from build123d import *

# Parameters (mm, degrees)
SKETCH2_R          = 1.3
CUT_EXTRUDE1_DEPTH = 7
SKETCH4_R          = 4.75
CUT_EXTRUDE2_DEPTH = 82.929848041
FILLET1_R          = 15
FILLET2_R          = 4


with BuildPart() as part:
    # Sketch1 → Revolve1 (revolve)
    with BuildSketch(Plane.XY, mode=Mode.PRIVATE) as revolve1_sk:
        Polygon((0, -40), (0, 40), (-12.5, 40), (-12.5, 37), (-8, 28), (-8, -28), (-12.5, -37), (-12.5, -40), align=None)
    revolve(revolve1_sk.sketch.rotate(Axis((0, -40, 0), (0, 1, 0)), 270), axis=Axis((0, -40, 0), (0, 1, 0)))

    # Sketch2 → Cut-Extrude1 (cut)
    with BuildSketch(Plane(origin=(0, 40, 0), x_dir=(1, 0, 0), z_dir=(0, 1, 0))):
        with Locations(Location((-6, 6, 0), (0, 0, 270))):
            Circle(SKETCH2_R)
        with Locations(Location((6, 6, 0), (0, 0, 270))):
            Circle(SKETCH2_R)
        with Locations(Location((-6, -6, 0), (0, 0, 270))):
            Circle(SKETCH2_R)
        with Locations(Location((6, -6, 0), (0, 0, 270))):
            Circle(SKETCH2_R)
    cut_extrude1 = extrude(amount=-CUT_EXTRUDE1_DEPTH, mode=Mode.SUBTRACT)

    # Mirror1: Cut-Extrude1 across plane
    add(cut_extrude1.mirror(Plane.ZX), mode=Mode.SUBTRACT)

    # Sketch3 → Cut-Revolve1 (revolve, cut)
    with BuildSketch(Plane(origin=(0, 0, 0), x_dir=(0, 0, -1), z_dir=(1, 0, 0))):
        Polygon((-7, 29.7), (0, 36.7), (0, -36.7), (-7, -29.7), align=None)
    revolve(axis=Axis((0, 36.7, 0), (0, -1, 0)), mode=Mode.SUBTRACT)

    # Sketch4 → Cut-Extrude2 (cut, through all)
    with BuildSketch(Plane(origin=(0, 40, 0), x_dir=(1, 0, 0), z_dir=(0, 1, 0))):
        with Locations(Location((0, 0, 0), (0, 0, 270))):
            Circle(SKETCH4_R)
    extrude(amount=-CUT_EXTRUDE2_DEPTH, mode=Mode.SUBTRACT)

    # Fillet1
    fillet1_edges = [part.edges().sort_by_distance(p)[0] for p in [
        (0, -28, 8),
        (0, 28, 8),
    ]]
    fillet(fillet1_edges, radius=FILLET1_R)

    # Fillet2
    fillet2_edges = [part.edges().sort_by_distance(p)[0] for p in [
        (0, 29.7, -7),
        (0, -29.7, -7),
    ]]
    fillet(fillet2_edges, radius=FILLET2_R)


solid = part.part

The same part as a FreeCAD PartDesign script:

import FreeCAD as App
import Part
import Sketcher
Q = App.Units.Quantity


def edges_at(feature, points):
    """Names of the edges that pass closest to the given points."""
    edges = feature.Shape.Edges
    near = lambda p: min(range(len(edges)), key=lambda i: edges[i].distToShape(Part.Vertex(*p))[0])
    return sorted({f"Edge{near(p) + 1}" for p in points})

doc = App.newDocument("Part")
body = doc.addObject("PartDesign::Body", "Body")

# Sketch on XY plane
sketch1 = body.newObject("Sketcher::SketchObject", "Sketch")
sketch1.AttachmentSupport = (doc.getObject("XY_Plane"), [""])
sketch1.MapMode = "FlatFace"
sketch1.addGeometry([
    Part.LineSegment(App.Vector(0, -40, 0), App.Vector(0, 40, 0)),  # 0
    Part.LineSegment(App.Vector(0, 40, 0), App.Vector(-12.5, 40, 0)),  # 1
    Part.LineSegment(App.Vector(-12.5, 40, 0), App.Vector(-12.5, 37, 0)),  # 2
    Part.LineSegment(App.Vector(-12.5, 37, 0), App.Vector(-8, 28, 0)),  # 3
    Part.LineSegment(App.Vector(-8, 28, 0), App.Vector(-8, -28, 0)),  # 4
    Part.LineSegment(App.Vector(-8, -28, 0), App.Vector(-12.5, -37, 0)),  # 5
    Part.LineSegment(App.Vector(-12.5, -37, 0), App.Vector(-12.5, -40, 0)),  # 6
    Part.LineSegment(App.Vector(-12.5, -40, 0), App.Vector(0, -40, 0)),  # 7
], False)
sketch1.addConstraint([
    Sketcher.Constraint("Coincident", 0, 2, 1, 1),
    Sketcher.Constraint("Coincident", 1, 2, 2, 1),
    Sketcher.Constraint("Coincident", 2, 2, 3, 1),
    Sketcher.Constraint("Coincident", 3, 2, 4, 1),
    Sketcher.Constraint("Coincident", 4, 2, 5, 1),
    Sketcher.Constraint("Coincident", 5, 2, 6, 1),
    Sketcher.Constraint("Coincident", 6, 2, 7, 1),
    Sketcher.Constraint("Coincident", 7, 2, 0, 1),
    Sketcher.Constraint("Vertical", 0),
    Sketcher.Constraint("Horizontal", 1),
    Sketcher.Constraint("Vertical", 2),
    Sketcher.Constraint("Vertical", 4),
    Sketcher.Constraint("Vertical", 6),
    Sketcher.Constraint("Horizontal", 7),
    Sketcher.Constraint("Symmetric", 0, 2, 7, 2, -1, 1),
    Sketcher.Constraint("Symmetric", 2, 2, 5, 2, -1),
    Sketcher.Constraint("Equal", 3, 5),
    Sketcher.Constraint("DistanceY", 0, 1, 0, 2, Q("80 mm")),
    Sketcher.Constraint("DistanceY", 2, 2, 2, 1, Q("3 mm")),
    Sketcher.Constraint("DistanceY", 4, 2, 4, 1, Q("56 mm")),
    Sketcher.Constraint("DistanceX", 1, 2, 1, 1, Q("12.5 mm")),
    Sketcher.Constraint("DistanceX", 3, 2, -1, 1, Q("8 mm")),
])
revolution = body.newObject("PartDesign::Revolution", "Revolution")
revolution.Profile = sketch1
revolution.ReferenceAxis = (sketch1, ["V_Axis"])
revolution.Angle = 360

# Sketch on XZ plane
sketch2 = body.newObject("Sketcher::SketchObject", "Sketch001")
sketch2.AttachmentSupport = (doc.getObject("XZ_Plane"), [""])
sketch2.MapMode = "FlatFace"
sketch2.AttachmentOffset = App.Placement(App.Vector(0, 0, -40), App.Rotation())
sketch2.addGeometry([
    Part.Circle(App.Vector(-6, -6, 0), App.Vector(0, 0, 1), 1.3),
    Part.Circle(App.Vector(6, -6, 0), App.Vector(0, 0, 1), 1.3),
    Part.Circle(App.Vector(-6, 6, 0), App.Vector(0, 0, 1), 1.3),
    Part.Circle(App.Vector(6, 6, 0), App.Vector(0, 0, 1), 1.3),
], False)
sketch2.addConstraint([
    Sketcher.Constraint("Equal", 0, 1),
    Sketcher.Constraint("Equal", 1, 2),
    Sketcher.Constraint("Equal", 2, 3),
    Sketcher.Constraint("Symmetric", 1, 3, 2, 3, -1, 1),
    Sketcher.Constraint("Symmetric", 0, 3, 3, 3, -1, 1),
    Sketcher.Constraint("Symmetric", 0, 3, 1, 3, -2),
    Sketcher.Constraint("Diameter", 0, Q("2.6 mm")),
    Sketcher.Constraint("DistanceX", 0, 3, -1, 1, Q("6 mm")),
    Sketcher.Constraint("DistanceY", 0, 3, -1, 1, Q("6 mm")),
])
pocket1 = body.newObject("PartDesign::Pocket", "Pocket")
pocket1.Profile = sketch2
pocket1.Length = 7
pocket1.Reversed = True
doc.recompute()

mirrored = body.newObject("PartDesign::Mirrored", "Mirrored")
mirrored.Originals = [pocket1]
mirrored.MirrorPlane = (doc.getObject("XZ_Plane"), [""])
body.Tip = mirrored

# Sketch on YZ plane
sketch3 = body.newObject("Sketcher::SketchObject", "Sketch002")
sketch3.AttachmentSupport = (doc.getObject("YZ_Plane"), [""])
sketch3.MapMode = "FlatFace"
sketch3.addGeometry([
    Part.LineSegment(App.Vector(36.7, 0, 0), App.Vector(29.7, 7, 0)),
    Part.LineSegment(App.Vector(29.7, 7, 0), App.Vector(-29.7, 7, 0)),
    Part.LineSegment(App.Vector(-29.7, 7, 0), App.Vector(-36.7, 0, 0)),
    Part.LineSegment(App.Vector(-36.7, 0, 0), App.Vector(36.7, 0, 0)),
], False)
sketch3.addConstraint([
    Sketcher.Constraint("Coincident", 0, 2, 1, 1),
    Sketcher.Constraint("Coincident", 1, 2, 2, 1),
    Sketcher.Constraint("Coincident", 2, 2, 3, 1),
    Sketcher.Constraint("Coincident", 3, 2, 0, 1),
    Sketcher.Constraint("Horizontal", 1),
    Sketcher.Constraint("Horizontal", 3),
    Sketcher.Constraint("Symmetric", 2, 2, 3, 2, -1, 1),
    Sketcher.Constraint("Perpendicular", 0, 2),
    Sketcher.Constraint("Equal", 0, 2),
    Sketcher.Constraint("DistanceX", 1, 2, 1, 1, Q("59.4 mm")),
    Sketcher.Constraint("DistanceX", 3, 1, 3, 2, Q("73.4 mm")),
])
groove = body.newObject("PartDesign::Groove", "Groove")
groove.Profile = sketch3
groove.ReferenceAxis = (sketch3, ["H_Axis"])
groove.Angle = 360

# Sketch on XZ plane
sketch4 = body.newObject("Sketcher::SketchObject", "Sketch003")
sketch4.AttachmentSupport = (doc.getObject("XZ_Plane"), [""])
sketch4.MapMode = "FlatFace"
sketch4.AttachmentOffset = App.Placement(App.Vector(0, 0, -40), App.Rotation())
sketch4.addGeometry(Part.Circle(App.Vector(0, 0, 0), App.Vector(0, 0, 1), 4.75), False)
sketch4.addConstraint([
    Sketcher.Constraint("Coincident", 0, 3, -1, 1),
    Sketcher.Constraint("Diameter", 0, Q("9.5 mm")),
])
pocket2 = body.newObject("PartDesign::Pocket", "Pocket001")
pocket2.Profile = sketch4
pocket2.Type = "ThroughAll"
pocket2.Reversed = True
doc.recompute()

fillet = body.newObject("PartDesign::Fillet", "Fillet")
fillet.Base = (pocket2, edges_at(pocket2, [(0, -28, 8), (0, 28, 8)]))
fillet.Radius = 15
doc.recompute()

fillet2 = body.newObject("PartDesign::Fillet", "Fillet001")
fillet2.Base = (fillet, edges_at(fillet, [(0, 29.7, -7), (0, -29.7, -7)]))
fillet2.Radius = 4

doc.recompute()
